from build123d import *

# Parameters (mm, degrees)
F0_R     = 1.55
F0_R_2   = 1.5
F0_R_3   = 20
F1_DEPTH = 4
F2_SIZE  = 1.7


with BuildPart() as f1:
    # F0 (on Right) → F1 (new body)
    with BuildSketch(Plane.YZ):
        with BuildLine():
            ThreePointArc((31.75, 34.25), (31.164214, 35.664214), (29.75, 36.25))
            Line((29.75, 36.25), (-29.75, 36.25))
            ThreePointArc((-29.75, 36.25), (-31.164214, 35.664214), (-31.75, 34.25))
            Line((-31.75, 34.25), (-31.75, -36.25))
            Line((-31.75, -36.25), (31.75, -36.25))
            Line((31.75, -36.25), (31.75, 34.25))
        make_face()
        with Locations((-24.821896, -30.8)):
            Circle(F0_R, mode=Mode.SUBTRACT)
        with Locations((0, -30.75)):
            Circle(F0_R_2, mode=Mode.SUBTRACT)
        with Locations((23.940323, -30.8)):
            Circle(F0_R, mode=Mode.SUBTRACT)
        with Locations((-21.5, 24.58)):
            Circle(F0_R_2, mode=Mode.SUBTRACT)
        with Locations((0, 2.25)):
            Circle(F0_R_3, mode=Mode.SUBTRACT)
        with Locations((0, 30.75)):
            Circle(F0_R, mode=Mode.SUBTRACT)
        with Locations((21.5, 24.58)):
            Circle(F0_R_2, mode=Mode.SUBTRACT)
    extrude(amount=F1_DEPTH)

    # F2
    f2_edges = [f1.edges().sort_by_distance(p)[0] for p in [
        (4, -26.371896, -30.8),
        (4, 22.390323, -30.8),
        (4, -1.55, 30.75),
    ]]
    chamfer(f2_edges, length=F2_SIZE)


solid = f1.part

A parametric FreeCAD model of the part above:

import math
import FreeCAD as App
import Part
import Sketcher

V = App.Vector


def edges_at(feature, points):
    """Names of the edges that pass closest to the given points."""
    edges = feature.Shape.Edges
    near = lambda p: min(range(len(edges)), key=lambda i: edges[i].distToShape(Part.Vertex(*p))[0])
    return sorted({f"Edge{near(p) + 1}" for p in points})

doc = App.newDocument("Part")
body = doc.addObject("PartDesign::Body", "Body")

# Sketch on YZ plane
sketch1 = body.newObject("Sketcher::SketchObject", "Sketch")
sketch1.AttachmentSupport = (doc.getObject("YZ_Plane"), [""])
sketch1.MapMode = "FlatFace"
sketch1.addGeometry([
    Part.ArcOfCircle(Part.Circle(V(29.750001, 34.250001, 0), V(0, 0, 1), 1.999999), math.radians(-0.000043), math.radians(90.000043)),  # 0
    Part.LineSegment(V(29.75, 36.25, 0), V(-29.75, 36.25, 0)),  # 1
    Part.ArcOfCircle(Part.Circle(V(-29.750001, 34.250001, 0), V(0, 0, 1), 1.999999), math.radians(89.999957), math.radians(180.000043)),  # 2
    Part.LineSegment(V(-31.75, 34.25, 0), V(-31.75, -36.25, 0)),  # 3
    Part.LineSegment(V(-31.75, -36.25, 0), V(31.75, -36.25, 0)),  # 4
    Part.LineSegment(V(31.75, -36.25, 0), V(31.75, 34.25, 0)),  # 5
    Part.Circle(V(-24.821896, -30.8, 0), V(0, 0, 1), 1.55),  # 6
    Part.Circle(V(0, -30.75, 0), V(0, 0, 1), 1.5),  # 7
    Part.Circle(V(23.940323, -30.8, 0), V(0, 0, 1), 1.55),  # 8
    Part.Circle(V(-21.5, 24.58, 0), V(0, 0, 1), 1.5),  # 9
    Part.Circle(V(0, 2.25, 0), V(0, 0, 1), 20),  # 10
    Part.Circle(V(0, 30.75, 0), V(0, 0, 1), 1.55),  # 11
    Part.Circle(V(21.5, 24.58, 0), V(0, 0, 1), 1.5),  # 12
], False)
sketch1.addConstraint([
    Sketcher.Constraint("Tangent", 0, 2, 1, 1),
    Sketcher.Constraint("Tangent", 1, 2, 2, 1),
    Sketcher.Constraint("Tangent", 2, 2, 3, 1),
    Sketcher.Constraint("Coincident", 3, 2, 4, 1),
    Sketcher.Constraint("Coincident", 4, 2, 5, 1),
    Sketcher.Constraint("Tangent", 5, 2, 0, 1),
    Sketcher.Constraint("Horizontal", 1),
    Sketcher.Constraint("Vertical", 3),
    Sketcher.Constraint("Horizontal", 4),
    Sketcher.Constraint("Vertical", 5),
    Sketcher.Constraint("Equal", 0, 2),
    Sketcher.Constraint("Equal", 6, 8),
    Sketcher.Constraint("Equal", 7, 9),
    Sketcher.Constraint("Equal", 8, 11),
    Sketcher.Constraint("Equal", 9, 12),
    Sketcher.Constraint("Symmetric", 7, 3, 11, 3, -1, 1),
    Sketcher.Constraint("Symmetric", 9, 3, 12, 3, -2),
    Sketcher.Constraint("PointOnObject", 7, 3, -2),
    Sketcher.Constraint("PointOnObject", 10, 3, -2),
    Sketcher.Constraint("Horizontal", 6, 3, 8, 3),
    Sketcher.Constraint("Diameter", 7, 3.0),
    Sketcher.Constraint("Diameter", 10, 40.0),
    Sketcher.Constraint("Radius", 0, 1.999999),
    Sketcher.Constraint("Diameter", 6, 3.1),
    Sketcher.Constraint("DistanceX", 1, 2, 1, 1, 59.5),
    Sketcher.Constraint("DistanceY", 3, 2, 3, 1, 70.5),
    Sketcher.Constraint("DistanceY", 7, 3, 0, 3, 65.000001),
    Sketcher.Constraint("DistanceY", 7, 3, 10, 3, 33.0),
    Sketcher.Constraint("DistanceX", 9, 3, 12, 3, 43.0),
    Sketcher.Constraint("DistanceY", 6, 3, -1, 1, 30.8),
    Sketcher.Constraint("DistanceY", 10, 3, 11, 3, 28.5),
    Sketcher.Constraint("DistanceX", -1, 1, 0, 3, 29.750001),
    Sketcher.Constraint("DistanceY", -1, 1, 9, 3, 24.58),
    Sketcher.Constraint("DistanceX", 6, 3, 8, 3, 48.762219),
    Sketcher.Constraint("DistanceX", 8, 3, 0, 3, 5.809678),
])
pad1 = body.newObject("PartDesign::Pad", "Pad")
pad1.Profile = sketch1
pad1.Length = 4
doc.recompute()

chamfer = body.newObject("PartDesign::Chamfer", "Chamfer")
chamfer.Base = (pad1, edges_at(pad1, [(4, -26.372, -30.8), (4, 22.39, -30.8), (4, -1.55, 30.75)]))
chamfer.Size = 1.7

doc.recompute()
